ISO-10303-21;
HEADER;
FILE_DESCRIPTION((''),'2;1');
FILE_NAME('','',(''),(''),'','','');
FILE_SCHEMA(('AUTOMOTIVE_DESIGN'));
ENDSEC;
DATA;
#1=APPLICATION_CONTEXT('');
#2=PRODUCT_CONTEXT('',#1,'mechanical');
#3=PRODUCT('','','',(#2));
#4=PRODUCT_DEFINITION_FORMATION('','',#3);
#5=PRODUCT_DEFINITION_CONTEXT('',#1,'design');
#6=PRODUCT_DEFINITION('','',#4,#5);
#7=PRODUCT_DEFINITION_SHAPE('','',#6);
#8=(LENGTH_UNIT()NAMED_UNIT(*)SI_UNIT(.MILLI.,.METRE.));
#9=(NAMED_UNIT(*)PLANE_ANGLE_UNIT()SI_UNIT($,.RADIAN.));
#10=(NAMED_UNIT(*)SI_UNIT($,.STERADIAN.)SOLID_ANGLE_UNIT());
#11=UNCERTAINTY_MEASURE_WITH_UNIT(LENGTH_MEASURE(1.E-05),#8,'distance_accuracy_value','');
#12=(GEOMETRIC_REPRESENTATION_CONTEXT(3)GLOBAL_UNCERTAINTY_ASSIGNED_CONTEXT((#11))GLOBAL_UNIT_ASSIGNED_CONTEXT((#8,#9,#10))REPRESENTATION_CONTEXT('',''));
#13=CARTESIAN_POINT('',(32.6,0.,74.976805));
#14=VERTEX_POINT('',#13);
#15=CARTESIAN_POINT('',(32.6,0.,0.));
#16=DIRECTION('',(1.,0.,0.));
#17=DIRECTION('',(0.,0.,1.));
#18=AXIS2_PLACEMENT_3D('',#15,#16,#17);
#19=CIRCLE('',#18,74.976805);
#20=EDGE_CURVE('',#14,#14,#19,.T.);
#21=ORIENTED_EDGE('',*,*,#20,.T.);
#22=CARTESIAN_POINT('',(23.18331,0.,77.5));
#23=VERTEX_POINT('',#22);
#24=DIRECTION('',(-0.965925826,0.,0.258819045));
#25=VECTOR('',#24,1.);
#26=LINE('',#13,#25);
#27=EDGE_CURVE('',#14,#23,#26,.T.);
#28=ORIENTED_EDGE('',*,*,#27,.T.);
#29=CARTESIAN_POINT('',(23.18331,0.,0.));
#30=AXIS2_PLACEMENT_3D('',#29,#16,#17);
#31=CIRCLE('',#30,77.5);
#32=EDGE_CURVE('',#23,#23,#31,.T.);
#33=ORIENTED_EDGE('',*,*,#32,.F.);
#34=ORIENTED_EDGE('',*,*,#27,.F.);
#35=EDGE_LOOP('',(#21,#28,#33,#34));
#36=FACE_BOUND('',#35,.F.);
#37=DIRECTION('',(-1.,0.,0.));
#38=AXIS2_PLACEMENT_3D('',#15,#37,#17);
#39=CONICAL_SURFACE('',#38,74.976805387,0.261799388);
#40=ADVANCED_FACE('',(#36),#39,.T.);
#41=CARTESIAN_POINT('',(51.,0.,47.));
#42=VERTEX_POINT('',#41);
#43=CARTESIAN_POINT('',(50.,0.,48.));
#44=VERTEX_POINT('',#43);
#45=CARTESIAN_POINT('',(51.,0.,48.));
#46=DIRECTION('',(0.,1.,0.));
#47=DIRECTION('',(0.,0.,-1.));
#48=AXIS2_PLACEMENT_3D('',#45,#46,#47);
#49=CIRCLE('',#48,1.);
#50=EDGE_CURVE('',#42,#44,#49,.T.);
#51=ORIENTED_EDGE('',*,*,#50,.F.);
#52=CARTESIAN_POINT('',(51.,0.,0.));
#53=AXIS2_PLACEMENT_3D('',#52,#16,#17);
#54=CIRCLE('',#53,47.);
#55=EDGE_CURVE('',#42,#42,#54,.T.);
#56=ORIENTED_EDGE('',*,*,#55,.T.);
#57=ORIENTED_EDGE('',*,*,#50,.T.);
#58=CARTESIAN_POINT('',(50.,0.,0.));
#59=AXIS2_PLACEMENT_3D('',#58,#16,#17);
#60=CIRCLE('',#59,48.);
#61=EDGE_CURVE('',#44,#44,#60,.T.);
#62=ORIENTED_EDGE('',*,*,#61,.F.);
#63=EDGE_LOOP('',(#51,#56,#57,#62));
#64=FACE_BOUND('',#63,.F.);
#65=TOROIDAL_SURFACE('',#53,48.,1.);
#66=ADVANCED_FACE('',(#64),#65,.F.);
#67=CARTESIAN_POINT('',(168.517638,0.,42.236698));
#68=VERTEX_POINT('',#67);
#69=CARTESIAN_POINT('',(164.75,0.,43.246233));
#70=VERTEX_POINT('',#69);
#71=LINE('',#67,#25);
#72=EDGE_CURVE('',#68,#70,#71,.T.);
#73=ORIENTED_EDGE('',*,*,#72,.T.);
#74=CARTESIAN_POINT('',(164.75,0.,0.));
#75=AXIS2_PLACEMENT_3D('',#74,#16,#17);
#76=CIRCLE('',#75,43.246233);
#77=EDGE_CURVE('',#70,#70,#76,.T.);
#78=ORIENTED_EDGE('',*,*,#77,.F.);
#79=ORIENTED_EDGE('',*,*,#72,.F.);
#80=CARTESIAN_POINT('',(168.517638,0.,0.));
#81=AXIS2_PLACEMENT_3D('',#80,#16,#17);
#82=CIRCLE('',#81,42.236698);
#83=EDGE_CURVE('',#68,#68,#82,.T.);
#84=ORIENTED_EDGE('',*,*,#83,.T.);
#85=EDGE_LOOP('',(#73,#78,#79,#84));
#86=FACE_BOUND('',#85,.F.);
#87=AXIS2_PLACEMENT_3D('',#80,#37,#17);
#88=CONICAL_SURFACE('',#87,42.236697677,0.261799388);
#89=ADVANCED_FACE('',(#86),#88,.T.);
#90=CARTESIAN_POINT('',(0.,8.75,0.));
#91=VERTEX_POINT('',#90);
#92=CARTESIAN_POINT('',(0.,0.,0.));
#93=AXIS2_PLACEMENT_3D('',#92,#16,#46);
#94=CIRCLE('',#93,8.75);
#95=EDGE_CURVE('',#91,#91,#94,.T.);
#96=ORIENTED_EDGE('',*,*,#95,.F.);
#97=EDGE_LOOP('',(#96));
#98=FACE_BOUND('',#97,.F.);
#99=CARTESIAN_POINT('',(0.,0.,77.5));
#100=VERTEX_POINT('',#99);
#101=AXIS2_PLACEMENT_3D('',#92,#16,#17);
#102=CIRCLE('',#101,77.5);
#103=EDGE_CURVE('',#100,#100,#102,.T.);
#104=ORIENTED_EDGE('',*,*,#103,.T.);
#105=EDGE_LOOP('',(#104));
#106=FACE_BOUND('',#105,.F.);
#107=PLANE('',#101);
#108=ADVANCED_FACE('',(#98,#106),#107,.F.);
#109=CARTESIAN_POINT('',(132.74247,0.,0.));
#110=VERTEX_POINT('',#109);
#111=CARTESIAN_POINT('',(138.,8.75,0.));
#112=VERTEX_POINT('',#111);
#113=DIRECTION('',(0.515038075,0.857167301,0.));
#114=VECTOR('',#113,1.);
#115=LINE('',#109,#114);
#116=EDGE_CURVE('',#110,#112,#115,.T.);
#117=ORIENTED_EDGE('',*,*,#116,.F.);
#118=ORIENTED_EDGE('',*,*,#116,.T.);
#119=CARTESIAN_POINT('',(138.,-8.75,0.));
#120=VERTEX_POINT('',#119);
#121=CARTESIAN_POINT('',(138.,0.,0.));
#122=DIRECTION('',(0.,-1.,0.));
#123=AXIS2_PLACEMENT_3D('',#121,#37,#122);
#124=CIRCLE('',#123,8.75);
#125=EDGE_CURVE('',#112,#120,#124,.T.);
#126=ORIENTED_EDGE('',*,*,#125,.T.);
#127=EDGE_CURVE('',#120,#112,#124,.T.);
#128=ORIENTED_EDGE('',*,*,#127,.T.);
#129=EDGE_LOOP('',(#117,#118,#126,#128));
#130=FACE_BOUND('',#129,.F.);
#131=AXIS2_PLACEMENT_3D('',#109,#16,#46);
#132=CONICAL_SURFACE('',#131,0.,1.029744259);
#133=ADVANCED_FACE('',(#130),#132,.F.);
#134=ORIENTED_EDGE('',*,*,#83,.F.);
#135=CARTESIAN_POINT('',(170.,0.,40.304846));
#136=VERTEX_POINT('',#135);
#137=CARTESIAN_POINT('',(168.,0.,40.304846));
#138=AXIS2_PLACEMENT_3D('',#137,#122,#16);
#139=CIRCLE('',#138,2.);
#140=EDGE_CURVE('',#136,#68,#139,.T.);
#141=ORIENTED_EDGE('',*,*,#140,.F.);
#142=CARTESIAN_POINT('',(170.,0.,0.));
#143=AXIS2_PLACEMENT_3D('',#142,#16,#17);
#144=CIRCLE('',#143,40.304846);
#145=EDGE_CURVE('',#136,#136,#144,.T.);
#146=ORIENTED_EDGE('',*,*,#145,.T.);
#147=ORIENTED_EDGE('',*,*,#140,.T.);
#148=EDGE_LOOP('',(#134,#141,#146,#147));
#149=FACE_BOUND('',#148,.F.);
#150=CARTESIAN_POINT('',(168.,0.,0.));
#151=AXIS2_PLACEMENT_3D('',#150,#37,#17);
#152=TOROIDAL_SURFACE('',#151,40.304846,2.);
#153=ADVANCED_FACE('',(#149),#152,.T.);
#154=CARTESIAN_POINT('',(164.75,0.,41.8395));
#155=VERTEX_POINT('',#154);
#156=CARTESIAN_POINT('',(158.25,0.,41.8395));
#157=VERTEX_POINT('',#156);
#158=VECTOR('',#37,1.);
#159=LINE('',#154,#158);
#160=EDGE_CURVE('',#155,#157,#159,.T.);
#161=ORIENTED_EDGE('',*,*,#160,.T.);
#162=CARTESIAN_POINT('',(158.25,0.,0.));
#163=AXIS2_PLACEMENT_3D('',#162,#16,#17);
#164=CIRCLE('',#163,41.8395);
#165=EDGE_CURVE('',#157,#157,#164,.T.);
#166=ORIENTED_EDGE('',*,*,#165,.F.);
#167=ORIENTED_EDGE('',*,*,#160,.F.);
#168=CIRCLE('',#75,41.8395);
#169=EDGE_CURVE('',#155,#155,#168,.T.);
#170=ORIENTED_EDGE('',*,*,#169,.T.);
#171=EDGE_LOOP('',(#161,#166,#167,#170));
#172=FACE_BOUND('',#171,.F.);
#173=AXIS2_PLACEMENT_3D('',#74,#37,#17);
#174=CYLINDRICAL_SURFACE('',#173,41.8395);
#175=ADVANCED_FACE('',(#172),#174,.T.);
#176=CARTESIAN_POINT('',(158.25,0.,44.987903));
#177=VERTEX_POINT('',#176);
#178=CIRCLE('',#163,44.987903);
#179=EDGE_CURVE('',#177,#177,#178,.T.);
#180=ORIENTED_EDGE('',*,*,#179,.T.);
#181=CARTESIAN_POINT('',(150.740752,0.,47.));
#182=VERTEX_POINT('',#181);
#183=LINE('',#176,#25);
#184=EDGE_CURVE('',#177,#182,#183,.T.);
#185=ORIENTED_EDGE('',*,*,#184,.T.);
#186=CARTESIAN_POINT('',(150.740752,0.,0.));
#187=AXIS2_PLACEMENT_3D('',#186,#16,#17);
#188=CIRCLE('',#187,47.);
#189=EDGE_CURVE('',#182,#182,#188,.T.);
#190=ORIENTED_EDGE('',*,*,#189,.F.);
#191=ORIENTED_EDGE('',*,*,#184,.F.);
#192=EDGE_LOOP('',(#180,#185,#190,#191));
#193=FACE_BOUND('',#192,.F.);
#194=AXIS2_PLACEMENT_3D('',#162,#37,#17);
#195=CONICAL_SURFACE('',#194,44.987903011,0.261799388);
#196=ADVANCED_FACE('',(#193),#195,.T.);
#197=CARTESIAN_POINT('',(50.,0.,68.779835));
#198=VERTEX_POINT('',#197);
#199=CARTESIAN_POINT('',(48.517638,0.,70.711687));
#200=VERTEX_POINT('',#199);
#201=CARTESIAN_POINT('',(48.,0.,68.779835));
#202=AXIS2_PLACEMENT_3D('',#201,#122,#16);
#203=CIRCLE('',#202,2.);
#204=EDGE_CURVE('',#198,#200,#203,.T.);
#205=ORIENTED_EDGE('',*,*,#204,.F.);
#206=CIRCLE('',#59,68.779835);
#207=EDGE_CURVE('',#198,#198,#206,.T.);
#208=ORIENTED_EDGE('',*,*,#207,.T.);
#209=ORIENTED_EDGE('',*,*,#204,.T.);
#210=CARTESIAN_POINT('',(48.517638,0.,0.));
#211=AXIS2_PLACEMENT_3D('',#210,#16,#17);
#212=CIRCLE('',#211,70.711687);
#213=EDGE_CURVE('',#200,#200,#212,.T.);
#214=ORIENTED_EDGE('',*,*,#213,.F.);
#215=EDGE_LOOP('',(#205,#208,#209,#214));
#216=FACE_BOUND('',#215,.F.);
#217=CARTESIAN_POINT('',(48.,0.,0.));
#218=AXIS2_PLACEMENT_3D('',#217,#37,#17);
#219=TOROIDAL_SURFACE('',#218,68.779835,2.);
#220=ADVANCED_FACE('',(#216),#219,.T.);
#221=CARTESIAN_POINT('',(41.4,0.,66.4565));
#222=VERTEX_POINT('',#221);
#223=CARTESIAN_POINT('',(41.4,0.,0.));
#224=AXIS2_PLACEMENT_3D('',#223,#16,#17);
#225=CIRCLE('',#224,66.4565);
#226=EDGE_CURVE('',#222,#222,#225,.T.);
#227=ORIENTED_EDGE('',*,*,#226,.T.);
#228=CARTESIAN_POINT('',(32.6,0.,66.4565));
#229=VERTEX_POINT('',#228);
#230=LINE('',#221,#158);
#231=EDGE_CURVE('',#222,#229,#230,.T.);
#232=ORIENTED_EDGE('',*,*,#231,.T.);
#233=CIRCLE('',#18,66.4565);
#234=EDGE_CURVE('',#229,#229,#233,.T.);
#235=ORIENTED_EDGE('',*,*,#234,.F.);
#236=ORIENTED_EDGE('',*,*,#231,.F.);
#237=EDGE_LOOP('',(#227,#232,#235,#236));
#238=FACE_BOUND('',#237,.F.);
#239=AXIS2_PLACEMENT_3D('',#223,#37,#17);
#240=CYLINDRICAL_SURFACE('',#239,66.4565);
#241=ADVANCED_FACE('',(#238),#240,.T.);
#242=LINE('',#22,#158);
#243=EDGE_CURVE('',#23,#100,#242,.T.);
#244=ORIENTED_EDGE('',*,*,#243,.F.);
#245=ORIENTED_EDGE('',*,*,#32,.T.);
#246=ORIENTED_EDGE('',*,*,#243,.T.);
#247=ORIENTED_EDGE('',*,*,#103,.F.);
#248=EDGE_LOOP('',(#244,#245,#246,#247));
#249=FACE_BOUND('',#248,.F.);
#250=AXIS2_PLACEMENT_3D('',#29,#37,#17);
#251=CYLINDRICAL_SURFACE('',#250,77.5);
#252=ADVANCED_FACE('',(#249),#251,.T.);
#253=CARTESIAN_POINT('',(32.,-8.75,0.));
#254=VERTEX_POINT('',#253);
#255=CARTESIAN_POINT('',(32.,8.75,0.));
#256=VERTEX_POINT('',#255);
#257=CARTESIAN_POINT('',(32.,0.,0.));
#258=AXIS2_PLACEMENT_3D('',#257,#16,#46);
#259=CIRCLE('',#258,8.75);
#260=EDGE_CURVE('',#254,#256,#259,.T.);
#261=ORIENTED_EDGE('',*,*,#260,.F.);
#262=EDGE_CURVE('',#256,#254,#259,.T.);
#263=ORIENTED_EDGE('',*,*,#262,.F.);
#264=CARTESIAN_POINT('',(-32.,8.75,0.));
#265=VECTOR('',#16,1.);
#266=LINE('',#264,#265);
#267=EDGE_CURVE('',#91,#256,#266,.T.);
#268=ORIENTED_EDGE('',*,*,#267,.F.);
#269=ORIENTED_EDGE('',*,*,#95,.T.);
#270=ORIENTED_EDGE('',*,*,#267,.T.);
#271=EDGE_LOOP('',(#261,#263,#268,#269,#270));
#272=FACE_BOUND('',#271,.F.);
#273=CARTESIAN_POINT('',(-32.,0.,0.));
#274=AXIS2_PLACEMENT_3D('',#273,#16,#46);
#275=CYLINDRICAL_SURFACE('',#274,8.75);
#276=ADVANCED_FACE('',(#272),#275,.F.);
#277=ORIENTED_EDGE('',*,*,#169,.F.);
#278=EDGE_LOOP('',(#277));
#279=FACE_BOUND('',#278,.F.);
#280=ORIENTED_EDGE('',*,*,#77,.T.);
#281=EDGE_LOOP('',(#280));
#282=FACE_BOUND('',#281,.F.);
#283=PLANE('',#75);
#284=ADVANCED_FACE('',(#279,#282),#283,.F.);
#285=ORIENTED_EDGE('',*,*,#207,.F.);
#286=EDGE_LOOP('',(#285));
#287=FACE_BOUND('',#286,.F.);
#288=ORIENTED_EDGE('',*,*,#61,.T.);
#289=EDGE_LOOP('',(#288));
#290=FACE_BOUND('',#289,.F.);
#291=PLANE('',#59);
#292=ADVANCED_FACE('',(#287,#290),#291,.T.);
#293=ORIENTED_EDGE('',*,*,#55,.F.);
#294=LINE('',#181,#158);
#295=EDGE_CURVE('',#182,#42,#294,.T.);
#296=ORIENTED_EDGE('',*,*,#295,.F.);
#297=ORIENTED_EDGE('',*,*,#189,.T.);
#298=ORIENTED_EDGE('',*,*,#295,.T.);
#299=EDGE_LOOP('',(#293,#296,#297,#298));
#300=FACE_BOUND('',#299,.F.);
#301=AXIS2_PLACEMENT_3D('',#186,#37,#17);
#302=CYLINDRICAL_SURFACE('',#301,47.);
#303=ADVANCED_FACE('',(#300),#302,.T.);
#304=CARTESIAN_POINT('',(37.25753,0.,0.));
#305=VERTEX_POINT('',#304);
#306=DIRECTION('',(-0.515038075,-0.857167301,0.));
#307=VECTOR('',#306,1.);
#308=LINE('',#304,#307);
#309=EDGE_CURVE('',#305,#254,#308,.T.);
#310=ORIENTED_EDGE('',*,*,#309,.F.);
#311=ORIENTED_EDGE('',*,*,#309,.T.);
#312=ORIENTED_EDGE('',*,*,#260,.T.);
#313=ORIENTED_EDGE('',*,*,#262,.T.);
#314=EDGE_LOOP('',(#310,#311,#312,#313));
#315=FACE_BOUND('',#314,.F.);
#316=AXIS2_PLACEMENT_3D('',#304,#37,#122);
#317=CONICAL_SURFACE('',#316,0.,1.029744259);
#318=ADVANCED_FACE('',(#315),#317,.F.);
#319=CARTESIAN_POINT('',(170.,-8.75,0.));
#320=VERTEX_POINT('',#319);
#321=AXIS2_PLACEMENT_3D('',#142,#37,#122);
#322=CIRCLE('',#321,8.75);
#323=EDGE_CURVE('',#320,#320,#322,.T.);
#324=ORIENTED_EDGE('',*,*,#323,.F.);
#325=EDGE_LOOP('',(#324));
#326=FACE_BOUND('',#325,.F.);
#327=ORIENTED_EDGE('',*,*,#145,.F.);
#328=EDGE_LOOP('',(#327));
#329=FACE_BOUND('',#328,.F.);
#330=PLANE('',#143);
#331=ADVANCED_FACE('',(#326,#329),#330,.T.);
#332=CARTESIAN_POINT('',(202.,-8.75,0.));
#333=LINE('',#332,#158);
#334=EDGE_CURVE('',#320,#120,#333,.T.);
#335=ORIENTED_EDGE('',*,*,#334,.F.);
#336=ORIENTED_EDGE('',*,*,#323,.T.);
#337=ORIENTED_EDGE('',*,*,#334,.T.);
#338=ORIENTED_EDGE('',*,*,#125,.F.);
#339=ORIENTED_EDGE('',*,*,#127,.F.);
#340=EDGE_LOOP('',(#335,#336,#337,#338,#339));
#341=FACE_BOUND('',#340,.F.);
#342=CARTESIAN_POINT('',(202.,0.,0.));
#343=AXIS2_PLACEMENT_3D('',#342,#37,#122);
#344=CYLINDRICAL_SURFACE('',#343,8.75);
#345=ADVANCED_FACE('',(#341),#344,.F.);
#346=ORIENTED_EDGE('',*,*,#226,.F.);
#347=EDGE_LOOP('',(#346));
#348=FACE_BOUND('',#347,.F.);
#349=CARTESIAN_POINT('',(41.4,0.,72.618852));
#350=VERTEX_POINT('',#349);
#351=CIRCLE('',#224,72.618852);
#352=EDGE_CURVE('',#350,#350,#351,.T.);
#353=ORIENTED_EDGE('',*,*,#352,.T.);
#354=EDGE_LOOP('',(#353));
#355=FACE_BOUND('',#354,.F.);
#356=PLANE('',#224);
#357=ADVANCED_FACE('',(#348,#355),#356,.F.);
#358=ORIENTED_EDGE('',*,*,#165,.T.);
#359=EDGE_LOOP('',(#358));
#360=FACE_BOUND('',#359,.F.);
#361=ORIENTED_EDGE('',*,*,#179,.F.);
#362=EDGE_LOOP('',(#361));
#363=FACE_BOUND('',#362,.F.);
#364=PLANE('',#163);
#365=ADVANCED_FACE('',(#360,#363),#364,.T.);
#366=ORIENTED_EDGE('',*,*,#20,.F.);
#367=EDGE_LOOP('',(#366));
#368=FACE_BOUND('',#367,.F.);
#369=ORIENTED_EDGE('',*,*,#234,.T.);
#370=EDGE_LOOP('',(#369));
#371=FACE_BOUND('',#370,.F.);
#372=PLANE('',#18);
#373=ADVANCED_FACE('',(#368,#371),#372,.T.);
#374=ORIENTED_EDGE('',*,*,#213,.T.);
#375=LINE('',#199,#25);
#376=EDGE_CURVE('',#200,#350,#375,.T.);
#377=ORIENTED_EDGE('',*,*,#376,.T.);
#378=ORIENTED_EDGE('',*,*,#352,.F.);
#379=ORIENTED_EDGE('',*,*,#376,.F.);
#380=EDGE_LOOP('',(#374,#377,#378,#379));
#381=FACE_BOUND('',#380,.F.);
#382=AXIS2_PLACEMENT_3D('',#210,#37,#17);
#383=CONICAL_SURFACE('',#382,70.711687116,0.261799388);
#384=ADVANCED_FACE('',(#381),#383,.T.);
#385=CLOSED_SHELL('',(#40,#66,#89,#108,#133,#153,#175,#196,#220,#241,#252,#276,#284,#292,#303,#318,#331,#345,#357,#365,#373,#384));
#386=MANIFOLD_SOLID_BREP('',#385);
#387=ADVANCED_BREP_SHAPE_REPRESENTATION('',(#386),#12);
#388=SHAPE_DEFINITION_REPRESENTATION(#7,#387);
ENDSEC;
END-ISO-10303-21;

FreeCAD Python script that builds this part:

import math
import FreeCAD as App
import Part
import Sketcher

V = App.Vector
Q = App.Units.Quantity

doc = App.newDocument("Part")
params = doc.addObject("Spreadsheet::Sheet", "Params")
for row, (alias, value) in enumerate([
    ("sketch1_radius", "2 mm"),
    ("sketch1_radius2", "1 mm"),
    ("sketch1_width", "170 mm"),
    ("sketch1_width2", "6.5 mm"),
    ("sketch1_width3", "8.8 mm"),
    ("revolution_angle", "360 deg"),
    ("sketch2_diameter", "17.5 mm"),
    ("hole_diameter", "17.5 mm"),
    ("hole_depth", "32 mm"),
    ("sketch3_diameter", "17.5 mm"),
    ("hole2_diameter", "17.5 mm"),
    ("hole2_depth", "32 mm"),
], start=1):
    params.set(f"A{row}", alias)
    params.set(f"B{row}", "=" + value)
    params.setAlias(f"B{row}", alias)

body = doc.addObject("PartDesign::Body", "Body")

sketch1 = body.newObject("Sketcher::SketchObject", "Sketch")
sketch1.AttachmentSupport = (doc.getObject("XZ_Plane"), [""])
sketch1.MapMode = "FlatFace"
sketch1.addGeometry([
    Part.LineSegment(V(0, 77.5, 0), V(0, 0, 0)),
    Part.LineSegment(V(0, 0, 0), V(170, 0, 0)),
    Part.LineSegment(V(170, 0, 0), V(170, 40.304846, 0)),
    Part.ArcOfCircle(Part.Circle(V(168, 40.304846, 0), V(0, 0, 1), 2), math.radians(0), math.radians(75)),
    Part.LineSegment(V(168.517638, 42.236698, 0), V(164.75, 43.246233, 0)),
    Part.LineSegment(V(164.75, 43.246233, 0), V(164.75, 41.8395, 0)),
    Part.LineSegment(V(164.75, 41.8395, 0), V(158.25, 41.8395, 0)),
    Part.LineSegment(V(158.25, 41.8395, 0), V(158.25, 44.987903, 0)),
    Part.LineSegment(V(158.25, 44.987903, 0), V(150.740752, 47, 0)),
    Part.LineSegment(V(150.740752, 47, 0), V(51, 47, 0)),
    Part.ArcOfCircle(Part.Circle(V(51, 48, 0), V(0, 0, 1), 1), math.radians(180), math.radians(270)),
    Part.LineSegment(V(50, 48, 0), V(50, 68.779835, 0)),
    Part.ArcOfCircle(Part.Circle(V(48, 68.779835, 0), V(0, 0, 1), 2), math.radians(0), math.radians(75)),
    Part.LineSegment(V(48.517638, 70.711687, 0), V(41.4, 72.618852, 0)),
    Part.LineSegment(V(41.4, 72.618852, 0), V(41.4, 66.4565, 0)),
    Part.LineSegment(V(41.4, 66.4565, 0), V(32.6, 66.4565, 0)),
    Part.LineSegment(V(32.6, 66.4565, 0), V(32.6, 74.976805, 0)),
    Part.LineSegment(V(32.6, 74.976805, 0), V(23.18331, 77.5, 0)),
    Part.LineSegment(V(23.18331, 77.5, 0), V(0, 77.5, 0)),
], False)
sketch1.addConstraint([
    Sketcher.Constraint("Coincident", 0, 2, 1, 1),
    Sketcher.Constraint("Coincident", 1, 2, 2, 1),
    Sketcher.Constraint("Tangent", 2, 2, 3, 1),
    Sketcher.Constraint("Tangent", 3, 2, 4, 1),
    Sketcher.Constraint("Coincident", 4, 2, 5, 1),
    Sketcher.Constraint("Coincident", 5, 2, 6, 1),
    Sketcher.Constraint("Coincident", 6, 2, 7, 1),
    Sketcher.Constraint("Coincident", 7, 2, 8, 1),
    Sketcher.Constraint("Coincident", 8, 2, 9, 1),
    Sketcher.Constraint("Tangent", 9, 2, 10, 2),
    Sketcher.Constraint("Tangent", 10, 1, 11, 1),
    Sketcher.Constraint("Tangent", 11, 2, 12, 1),
    Sketcher.Constraint("Tangent", 12, 2, 13, 1),
    Sketcher.Constraint("Coincident", 13, 2, 14, 1),
    Sketcher.Constraint("Coincident", 14, 2, 15, 1),
    Sketcher.Constraint("Coincident", 15, 2, 16, 1),
    Sketcher.Constraint("Coincident", 16, 2, 17, 1),
    Sketcher.Constraint("Coincident", 17, 2, 18, 1),
    Sketcher.Constraint("Coincident", 18, 2, 0, 1),
    Sketcher.Constraint("Vertical", 0),
    Sketcher.Constraint("Horizontal", 1),
    Sketcher.Constraint("Vertical", 2),
    Sketcher.Constraint("Vertical", 5),
    Sketcher.Constraint("Horizontal", 6),
    Sketcher.Constraint("Vertical", 7),
    Sketcher.Constraint("Horizontal", 9),
    Sketcher.Constraint("Vertical", 11),
    Sketcher.Constraint("Vertical", 14),
    Sketcher.Constraint("Horizontal", 15),
    Sketcher.Constraint("Vertical", 16),
    Sketcher.Constraint("Horizontal", 18),
    Sketcher.Constraint("Coincident", 0, 2, -1, 1),
    Sketcher.Constraint("Equal", 3, 12),
    Sketcher.Constraint("Parallel", 4, 8),
    Sketcher.Constraint("Parallel", 8, 13),
    Sketcher.Constraint("Parallel", 13, 17),
    Sketcher.Constraint("Radius", 3, 2.0),
    Sketcher.Constraint("Radius", 10, 1.0),
    Sketcher.Constraint("DistanceX", 1, 1, 1, 2, 170.0),
    Sketcher.Constraint("Angle", 4, Q("165 deg")),
    Sketcher.Constraint("DistanceX", 6, 2, 6, 1, 6.5),
    Sketcher.Constraint("DistanceX", 15, 2, 15, 1, 8.8),
    Sketcher.Constraint("DistanceY", 0, 2, 0, 1, 77.5),
    Sketcher.Constraint("DistanceX", -1, 1, 10, 3, 51.0),
    Sketcher.Constraint("DistanceY", -1, 1, 10, 3, 48.0),
    Sketcher.Constraint("DistanceX", -1, 1, 13, 2, 41.4),
    Sketcher.Constraint("DistanceX", -1, 1, 4, 2, 164.75),
    Sketcher.Constraint("DistanceX", 9, 2, 9, 1, 99.740752),
    Sketcher.Constraint("DistanceX", 18, 2, 18, 1, 23.18331),
    Sketcher.Constraint("DistanceY", -1, 1, 5, 2, 41.8395),
    Sketcher.Constraint("DistanceY", -1, 1, 14, 2, 66.4565),
    Sketcher.Constraint("DistanceY", 2, 1, 2, 2, 40.304846),
    Sketcher.Constraint("DistanceY", 11, 1, 11, 2, 20.779835),
])
sketch1.setExpression("Constraints[36]", "Params.sketch1_radius")
sketch1.setExpression("Constraints[37]", "Params.sketch1_radius2")
sketch1.setExpression("Constraints[38]", "Params.sketch1_width")
sketch1.setExpression("Constraints[40]", "Params.sketch1_width2")
sketch1.setExpression("Constraints[41]", "Params.sketch1_width3")
revolution = body.newObject("PartDesign::Revolution", "Revolution")
revolution.Profile = sketch1
revolution.ReferenceAxis = (sketch1, ["H_Axis"])
revolution.setExpression("Angle", "Params.revolution_angle")

sketch2 = body.newObject("Sketcher::SketchObject", "Sketch001")
sketch2.AttachmentSupport = (doc.getObject("YZ_Plane"), [""])
sketch2.MapMode = "FlatFace"
sketch2.addGeometry(Part.Circle(V(0, 0, 0), V(0, 0, 1), 8.75), False)
sketch2.addConstraint([
    Sketcher.Constraint("Coincident", 0, 3, -1, 1),
    Sketcher.Constraint("Diameter", 0, 17.5),
])
sketch2.setExpression("Constraints[1]", "Params.sketch2_diameter")
doc.recompute()
hole = body.newObject("PartDesign::Hole", "Hole")
hole.Profile = sketch2
hole.ThreadType = "None"
hole.setExpression("Diameter", "Params.hole_diameter")
hole.DepthType = "Dimension"
hole.setExpression("Depth", "Params.hole_depth")
hole.DrillPoint = "Angled"
hole.DrillPointAngle = 118
hole.Reversed = True

sketch3 = body.newObject("Sketcher::SketchObject", "Sketch002")
sketch3.AttachmentSupport = (doc.getObject("YZ_Plane"), [""])
sketch3.MapMode = "FlatFace"
sketch3.AttachmentOffset = App.Placement(V(0, 0, 170), App.Rotation())
sketch3.addGeometry(Part.Circle(V(0, 0, 0), V(0, 0, 1), 8.75), False)
sketch3.addConstraint([
    Sketcher.Constraint("Coincident", 0, 3, -1, 1),
    Sketcher.Constraint("Diameter", 0, 17.5),
])
sketch3.setExpression("Constraints[1]", "Params.sketch3_diameter")
doc.recompute()
hole2 = body.newObject("PartDesign::Hole", "Hole001")
hole2.Profile = sketch3
hole2.ThreadType = "None"
hole2.setExpression("Diameter", "Params.hole2_diameter")
hole2.DepthType = "Dimension"
hole2.setExpression("Depth", "Params.hole2_depth")
hole2.DrillPoint = "Angled"
hole2.DrillPointAngle = 118

doc.recompute()
